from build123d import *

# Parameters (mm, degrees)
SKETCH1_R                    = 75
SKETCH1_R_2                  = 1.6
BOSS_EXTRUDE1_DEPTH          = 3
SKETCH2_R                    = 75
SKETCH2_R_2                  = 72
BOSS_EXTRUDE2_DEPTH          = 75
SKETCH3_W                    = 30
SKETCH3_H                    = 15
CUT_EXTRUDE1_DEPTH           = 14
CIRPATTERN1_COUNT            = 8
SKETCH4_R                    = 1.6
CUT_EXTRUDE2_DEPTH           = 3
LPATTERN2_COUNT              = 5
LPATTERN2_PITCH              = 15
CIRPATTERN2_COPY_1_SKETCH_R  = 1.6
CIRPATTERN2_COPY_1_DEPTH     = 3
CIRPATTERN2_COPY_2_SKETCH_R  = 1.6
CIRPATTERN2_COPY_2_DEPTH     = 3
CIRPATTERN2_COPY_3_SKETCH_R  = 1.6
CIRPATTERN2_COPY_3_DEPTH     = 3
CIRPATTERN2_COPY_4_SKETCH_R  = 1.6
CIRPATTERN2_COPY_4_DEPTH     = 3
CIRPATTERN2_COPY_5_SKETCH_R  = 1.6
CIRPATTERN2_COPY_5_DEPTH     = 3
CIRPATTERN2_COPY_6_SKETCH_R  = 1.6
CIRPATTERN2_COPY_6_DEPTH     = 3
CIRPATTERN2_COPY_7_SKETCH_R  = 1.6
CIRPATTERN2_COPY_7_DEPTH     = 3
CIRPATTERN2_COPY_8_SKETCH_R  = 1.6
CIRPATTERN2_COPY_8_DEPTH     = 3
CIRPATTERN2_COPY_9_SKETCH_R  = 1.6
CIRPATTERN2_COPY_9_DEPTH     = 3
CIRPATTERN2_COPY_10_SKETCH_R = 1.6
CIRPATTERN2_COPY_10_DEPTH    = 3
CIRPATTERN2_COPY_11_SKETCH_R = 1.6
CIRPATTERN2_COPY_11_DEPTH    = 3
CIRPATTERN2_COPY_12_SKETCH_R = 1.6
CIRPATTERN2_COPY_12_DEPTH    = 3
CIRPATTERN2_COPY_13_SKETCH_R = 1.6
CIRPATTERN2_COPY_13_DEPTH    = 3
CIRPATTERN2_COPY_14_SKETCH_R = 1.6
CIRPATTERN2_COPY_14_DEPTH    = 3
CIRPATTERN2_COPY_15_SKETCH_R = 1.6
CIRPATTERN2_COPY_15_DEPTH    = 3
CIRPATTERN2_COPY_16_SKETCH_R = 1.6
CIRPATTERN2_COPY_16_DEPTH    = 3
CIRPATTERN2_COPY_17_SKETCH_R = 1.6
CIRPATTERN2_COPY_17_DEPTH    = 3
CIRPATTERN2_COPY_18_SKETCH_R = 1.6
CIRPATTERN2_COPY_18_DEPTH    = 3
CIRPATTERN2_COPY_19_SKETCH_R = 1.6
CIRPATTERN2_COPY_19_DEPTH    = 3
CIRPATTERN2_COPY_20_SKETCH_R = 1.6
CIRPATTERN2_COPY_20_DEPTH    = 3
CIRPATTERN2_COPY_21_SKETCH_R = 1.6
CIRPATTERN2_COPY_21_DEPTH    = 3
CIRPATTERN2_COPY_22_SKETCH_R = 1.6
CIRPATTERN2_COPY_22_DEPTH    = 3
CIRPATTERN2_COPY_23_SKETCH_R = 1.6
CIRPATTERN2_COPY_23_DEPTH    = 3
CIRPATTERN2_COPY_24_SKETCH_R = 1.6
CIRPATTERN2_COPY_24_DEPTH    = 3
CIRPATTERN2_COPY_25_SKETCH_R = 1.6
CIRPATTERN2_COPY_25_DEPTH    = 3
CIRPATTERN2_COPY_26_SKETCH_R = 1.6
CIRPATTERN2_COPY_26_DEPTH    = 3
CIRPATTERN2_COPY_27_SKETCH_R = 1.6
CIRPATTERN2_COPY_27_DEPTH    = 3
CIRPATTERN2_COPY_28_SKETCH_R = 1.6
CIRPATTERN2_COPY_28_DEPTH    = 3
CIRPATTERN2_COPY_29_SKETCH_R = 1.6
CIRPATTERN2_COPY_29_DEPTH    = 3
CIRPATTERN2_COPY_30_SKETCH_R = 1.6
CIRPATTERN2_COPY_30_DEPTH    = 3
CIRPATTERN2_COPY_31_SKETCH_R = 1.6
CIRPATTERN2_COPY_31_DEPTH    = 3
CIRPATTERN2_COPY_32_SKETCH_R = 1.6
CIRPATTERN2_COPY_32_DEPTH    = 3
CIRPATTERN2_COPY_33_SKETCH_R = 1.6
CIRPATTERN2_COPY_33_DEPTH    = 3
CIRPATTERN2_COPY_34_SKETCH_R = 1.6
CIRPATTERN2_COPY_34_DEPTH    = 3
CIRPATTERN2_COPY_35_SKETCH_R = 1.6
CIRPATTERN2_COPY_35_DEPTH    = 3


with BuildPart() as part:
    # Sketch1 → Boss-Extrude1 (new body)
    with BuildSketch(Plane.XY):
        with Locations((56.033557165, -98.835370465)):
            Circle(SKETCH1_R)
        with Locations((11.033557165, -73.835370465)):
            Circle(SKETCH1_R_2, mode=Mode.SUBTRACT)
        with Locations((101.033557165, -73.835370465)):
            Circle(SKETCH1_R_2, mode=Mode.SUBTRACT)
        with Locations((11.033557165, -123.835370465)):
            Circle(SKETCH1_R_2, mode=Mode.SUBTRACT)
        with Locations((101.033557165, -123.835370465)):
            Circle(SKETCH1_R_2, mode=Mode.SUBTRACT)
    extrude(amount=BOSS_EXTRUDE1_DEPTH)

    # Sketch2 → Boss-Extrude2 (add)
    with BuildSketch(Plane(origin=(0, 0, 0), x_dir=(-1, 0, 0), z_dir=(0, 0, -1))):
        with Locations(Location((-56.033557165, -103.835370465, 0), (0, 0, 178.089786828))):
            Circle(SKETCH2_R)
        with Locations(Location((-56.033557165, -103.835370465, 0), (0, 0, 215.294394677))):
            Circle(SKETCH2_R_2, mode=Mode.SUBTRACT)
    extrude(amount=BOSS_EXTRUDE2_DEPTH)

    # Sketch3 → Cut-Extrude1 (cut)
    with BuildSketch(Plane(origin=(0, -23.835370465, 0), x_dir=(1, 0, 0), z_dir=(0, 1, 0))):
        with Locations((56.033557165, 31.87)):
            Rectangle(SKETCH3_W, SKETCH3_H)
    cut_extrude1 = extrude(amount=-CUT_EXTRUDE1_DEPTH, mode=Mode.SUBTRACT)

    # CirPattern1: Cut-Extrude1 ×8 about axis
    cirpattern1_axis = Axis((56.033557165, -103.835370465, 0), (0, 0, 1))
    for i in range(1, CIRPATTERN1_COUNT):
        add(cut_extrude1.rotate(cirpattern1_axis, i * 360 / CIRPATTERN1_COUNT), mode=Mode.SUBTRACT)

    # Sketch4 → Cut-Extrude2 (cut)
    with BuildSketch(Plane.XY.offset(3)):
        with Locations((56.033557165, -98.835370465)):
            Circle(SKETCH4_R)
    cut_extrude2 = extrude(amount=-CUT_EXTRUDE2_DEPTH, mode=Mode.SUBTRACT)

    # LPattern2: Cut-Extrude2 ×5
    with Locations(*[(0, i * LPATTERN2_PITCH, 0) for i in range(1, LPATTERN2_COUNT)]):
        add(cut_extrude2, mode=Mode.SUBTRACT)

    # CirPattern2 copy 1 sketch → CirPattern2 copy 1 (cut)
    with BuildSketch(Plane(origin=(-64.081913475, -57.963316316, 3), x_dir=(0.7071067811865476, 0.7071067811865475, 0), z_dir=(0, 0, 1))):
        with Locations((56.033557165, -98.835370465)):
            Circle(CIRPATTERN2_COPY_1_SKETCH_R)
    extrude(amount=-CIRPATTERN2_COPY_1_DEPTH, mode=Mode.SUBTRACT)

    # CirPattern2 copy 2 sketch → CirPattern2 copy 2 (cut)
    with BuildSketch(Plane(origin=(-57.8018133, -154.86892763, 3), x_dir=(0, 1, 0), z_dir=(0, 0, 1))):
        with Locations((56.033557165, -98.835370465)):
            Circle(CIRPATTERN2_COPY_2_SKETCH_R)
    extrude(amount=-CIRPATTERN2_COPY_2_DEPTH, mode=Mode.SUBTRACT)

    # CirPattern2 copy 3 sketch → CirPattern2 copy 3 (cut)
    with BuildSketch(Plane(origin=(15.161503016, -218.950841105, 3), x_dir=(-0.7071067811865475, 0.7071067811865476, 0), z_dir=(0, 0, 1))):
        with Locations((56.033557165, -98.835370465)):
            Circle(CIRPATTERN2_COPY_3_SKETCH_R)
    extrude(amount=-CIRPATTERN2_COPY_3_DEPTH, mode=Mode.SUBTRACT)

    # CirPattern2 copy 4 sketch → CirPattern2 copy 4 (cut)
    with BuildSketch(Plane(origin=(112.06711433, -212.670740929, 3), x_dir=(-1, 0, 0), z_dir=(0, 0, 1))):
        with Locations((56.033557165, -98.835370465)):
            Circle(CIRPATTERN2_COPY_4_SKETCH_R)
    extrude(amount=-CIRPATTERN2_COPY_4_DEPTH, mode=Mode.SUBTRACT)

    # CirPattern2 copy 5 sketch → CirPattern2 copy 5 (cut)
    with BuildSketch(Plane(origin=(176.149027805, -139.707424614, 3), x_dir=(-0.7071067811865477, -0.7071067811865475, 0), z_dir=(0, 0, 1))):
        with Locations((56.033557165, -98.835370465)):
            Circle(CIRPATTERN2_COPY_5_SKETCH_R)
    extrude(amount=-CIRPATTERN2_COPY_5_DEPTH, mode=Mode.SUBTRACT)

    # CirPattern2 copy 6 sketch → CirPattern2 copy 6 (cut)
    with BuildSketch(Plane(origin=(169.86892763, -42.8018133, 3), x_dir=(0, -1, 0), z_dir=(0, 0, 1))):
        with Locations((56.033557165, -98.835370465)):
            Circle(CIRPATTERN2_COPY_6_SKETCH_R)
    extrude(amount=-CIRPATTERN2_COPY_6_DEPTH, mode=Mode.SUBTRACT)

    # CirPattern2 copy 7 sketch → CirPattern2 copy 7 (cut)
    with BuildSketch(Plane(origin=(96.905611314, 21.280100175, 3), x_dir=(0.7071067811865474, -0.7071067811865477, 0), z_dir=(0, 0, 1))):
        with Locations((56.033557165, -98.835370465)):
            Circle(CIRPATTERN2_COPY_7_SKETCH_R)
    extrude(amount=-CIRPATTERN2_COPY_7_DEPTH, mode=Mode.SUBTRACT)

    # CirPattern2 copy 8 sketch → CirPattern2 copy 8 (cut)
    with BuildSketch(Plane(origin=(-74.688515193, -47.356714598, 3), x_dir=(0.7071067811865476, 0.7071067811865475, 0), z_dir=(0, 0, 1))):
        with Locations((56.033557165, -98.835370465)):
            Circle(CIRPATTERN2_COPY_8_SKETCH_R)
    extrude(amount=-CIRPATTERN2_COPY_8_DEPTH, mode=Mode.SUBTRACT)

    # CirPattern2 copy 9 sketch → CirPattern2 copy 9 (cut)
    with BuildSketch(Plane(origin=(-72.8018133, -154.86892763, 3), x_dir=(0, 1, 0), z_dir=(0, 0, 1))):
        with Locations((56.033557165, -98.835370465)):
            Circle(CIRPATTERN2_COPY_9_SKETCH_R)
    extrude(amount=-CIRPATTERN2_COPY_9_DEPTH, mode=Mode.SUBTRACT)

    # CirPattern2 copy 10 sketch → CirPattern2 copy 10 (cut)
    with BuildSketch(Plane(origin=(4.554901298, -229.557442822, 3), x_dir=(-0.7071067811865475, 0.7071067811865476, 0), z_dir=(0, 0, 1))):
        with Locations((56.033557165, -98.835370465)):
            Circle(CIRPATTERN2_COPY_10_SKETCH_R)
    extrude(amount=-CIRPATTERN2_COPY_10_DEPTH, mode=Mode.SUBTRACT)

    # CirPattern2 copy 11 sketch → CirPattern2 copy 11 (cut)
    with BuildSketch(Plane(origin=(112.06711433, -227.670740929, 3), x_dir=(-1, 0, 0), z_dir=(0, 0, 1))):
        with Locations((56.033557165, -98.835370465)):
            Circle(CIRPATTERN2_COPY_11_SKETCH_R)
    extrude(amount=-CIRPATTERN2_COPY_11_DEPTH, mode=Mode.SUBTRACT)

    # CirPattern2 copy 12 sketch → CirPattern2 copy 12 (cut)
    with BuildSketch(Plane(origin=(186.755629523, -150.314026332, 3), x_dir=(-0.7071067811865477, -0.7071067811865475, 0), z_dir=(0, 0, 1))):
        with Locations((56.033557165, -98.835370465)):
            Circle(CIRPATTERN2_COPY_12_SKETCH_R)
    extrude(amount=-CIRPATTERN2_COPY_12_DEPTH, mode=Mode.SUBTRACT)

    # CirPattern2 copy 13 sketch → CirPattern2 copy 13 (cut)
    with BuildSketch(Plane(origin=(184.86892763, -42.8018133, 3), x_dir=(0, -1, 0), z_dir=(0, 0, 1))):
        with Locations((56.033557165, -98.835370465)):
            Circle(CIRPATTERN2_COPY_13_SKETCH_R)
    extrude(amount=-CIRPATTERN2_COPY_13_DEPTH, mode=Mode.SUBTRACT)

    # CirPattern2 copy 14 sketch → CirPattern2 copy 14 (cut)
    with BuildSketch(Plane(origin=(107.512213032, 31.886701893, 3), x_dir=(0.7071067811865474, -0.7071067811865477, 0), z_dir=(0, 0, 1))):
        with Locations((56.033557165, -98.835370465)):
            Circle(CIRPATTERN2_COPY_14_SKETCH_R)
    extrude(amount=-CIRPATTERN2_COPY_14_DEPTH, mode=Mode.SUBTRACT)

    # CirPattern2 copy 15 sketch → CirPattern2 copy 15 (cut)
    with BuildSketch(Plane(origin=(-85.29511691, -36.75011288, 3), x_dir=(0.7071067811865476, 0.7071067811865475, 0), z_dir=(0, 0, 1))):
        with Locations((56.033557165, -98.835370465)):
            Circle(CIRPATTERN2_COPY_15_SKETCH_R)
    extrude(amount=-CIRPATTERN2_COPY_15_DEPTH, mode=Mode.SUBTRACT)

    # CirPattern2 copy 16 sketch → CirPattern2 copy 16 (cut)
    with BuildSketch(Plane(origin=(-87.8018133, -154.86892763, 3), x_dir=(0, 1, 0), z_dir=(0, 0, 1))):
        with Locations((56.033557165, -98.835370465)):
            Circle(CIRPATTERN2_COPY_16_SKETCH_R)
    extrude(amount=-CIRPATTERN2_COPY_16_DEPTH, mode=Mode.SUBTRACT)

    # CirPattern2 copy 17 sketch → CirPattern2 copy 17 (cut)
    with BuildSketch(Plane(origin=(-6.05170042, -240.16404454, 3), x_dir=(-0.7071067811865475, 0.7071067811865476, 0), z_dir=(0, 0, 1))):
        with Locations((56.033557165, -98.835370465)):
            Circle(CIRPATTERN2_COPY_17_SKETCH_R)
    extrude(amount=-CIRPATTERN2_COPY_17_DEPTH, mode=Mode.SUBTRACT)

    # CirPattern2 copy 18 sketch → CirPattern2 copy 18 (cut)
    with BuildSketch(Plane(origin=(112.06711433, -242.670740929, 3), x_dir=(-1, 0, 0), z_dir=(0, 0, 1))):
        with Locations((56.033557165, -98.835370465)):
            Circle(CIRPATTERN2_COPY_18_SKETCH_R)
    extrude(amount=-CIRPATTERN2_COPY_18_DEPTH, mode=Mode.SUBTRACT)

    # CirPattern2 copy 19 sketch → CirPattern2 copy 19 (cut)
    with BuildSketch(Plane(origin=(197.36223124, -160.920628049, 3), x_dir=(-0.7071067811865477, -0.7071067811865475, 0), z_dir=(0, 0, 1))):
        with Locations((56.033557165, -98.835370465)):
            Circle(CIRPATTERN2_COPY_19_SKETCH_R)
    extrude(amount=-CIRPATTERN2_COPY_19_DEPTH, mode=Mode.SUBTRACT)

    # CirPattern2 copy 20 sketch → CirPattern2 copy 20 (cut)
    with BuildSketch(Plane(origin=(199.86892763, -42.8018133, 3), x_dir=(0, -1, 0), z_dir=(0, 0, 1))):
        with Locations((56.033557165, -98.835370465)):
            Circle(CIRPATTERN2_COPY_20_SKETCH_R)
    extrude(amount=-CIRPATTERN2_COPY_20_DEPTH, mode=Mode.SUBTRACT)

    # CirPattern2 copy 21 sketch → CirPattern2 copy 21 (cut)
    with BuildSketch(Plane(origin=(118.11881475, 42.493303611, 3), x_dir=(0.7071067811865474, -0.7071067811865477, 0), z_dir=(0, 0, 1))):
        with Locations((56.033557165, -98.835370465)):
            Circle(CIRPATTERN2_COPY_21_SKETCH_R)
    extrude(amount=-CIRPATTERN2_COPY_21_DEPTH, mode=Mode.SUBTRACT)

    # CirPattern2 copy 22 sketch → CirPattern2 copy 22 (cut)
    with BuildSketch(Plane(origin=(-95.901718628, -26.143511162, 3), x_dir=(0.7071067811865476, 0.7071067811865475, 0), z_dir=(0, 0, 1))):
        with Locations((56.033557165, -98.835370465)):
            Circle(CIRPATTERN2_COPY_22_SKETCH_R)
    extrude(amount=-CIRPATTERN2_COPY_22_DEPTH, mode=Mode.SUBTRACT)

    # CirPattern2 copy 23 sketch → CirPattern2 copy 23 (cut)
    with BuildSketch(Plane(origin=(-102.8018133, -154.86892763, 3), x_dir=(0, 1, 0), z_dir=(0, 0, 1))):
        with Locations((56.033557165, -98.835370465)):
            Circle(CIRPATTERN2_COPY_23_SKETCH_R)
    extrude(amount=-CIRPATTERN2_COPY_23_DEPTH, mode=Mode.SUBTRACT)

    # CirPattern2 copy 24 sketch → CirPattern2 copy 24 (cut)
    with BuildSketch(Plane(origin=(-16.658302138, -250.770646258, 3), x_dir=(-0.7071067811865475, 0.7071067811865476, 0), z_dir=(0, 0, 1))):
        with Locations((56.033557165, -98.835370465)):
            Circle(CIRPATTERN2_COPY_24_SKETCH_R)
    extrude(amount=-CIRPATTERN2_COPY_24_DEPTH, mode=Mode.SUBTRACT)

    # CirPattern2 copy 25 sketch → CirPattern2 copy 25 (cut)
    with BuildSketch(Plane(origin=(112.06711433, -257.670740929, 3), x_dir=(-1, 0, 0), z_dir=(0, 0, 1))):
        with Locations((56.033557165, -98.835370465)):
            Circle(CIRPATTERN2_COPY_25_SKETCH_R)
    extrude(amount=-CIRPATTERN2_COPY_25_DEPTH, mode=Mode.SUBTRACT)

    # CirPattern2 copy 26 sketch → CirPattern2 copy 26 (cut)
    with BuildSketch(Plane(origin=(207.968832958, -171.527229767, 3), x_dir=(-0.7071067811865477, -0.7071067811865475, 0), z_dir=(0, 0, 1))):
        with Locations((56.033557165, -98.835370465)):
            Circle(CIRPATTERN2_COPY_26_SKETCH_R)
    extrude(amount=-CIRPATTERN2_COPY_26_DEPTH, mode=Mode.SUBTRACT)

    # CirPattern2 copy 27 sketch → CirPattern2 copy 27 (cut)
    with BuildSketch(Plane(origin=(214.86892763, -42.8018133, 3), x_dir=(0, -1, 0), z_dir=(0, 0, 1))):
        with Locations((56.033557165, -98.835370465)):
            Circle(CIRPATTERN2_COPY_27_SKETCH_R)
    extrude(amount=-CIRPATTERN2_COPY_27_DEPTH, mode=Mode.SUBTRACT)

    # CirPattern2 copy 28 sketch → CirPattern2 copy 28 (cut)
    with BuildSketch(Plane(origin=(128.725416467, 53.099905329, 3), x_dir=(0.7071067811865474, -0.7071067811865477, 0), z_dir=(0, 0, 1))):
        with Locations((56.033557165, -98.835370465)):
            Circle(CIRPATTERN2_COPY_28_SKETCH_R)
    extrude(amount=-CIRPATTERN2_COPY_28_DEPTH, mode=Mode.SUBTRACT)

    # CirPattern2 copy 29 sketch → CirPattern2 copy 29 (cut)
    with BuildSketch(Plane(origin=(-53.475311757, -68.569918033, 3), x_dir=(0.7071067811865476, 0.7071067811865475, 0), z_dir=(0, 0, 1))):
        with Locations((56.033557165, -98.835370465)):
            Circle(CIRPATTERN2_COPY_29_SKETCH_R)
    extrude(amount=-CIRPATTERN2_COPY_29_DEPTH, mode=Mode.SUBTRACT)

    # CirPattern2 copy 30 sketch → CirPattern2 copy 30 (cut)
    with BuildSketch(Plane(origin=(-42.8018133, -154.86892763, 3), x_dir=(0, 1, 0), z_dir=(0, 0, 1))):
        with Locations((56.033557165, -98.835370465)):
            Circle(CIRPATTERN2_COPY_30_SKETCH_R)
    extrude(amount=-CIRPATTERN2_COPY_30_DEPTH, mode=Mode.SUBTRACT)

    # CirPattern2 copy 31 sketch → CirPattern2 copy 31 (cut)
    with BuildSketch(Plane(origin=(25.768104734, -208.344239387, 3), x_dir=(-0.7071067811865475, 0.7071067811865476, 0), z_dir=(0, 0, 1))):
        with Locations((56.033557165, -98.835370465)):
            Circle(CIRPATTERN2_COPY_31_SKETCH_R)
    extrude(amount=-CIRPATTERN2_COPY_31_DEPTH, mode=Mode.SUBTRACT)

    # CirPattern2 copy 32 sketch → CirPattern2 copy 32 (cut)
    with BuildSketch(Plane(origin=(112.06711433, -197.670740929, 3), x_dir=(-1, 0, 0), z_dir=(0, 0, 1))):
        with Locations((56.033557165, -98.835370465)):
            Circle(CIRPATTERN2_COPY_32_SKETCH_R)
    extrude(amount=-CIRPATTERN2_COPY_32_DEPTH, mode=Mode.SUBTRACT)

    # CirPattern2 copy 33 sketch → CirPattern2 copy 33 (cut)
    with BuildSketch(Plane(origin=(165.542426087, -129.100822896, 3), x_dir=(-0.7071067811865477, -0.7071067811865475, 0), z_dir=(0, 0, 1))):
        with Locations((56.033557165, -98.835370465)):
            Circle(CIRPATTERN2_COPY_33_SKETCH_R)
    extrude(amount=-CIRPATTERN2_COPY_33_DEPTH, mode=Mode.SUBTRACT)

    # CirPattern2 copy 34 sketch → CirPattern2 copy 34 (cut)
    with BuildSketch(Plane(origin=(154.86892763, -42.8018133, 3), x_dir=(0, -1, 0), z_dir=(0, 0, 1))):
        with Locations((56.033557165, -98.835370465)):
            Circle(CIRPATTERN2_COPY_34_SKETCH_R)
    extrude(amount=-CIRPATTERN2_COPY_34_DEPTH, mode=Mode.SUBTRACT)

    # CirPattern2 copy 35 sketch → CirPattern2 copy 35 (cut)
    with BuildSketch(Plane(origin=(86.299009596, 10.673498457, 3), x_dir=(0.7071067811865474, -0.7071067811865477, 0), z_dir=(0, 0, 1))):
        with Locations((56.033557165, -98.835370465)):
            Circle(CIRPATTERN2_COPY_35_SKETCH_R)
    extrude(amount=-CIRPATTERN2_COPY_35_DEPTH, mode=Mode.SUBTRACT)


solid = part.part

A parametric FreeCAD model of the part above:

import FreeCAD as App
import Part
import Sketcher
from FreeCAD import Vector
Q = App.Units.Quantity

doc = App.newDocument("Part")
body = doc.addObject("PartDesign::Body", "Body")

# Sketch on XY plane
sketch1 = body.newObject("Sketcher::SketchObject", "Sketch")
sketch1.AttachmentSupport = (doc.getObject("XY_Plane"), [""])
sketch1.MapMode = "FlatFace"
sketch1.addGeometry(Part.Circle(Vector(56.033557, -98.83537, 0), Vector(0, 0, 1), 75), False)
sketch1.addGeometry(Part.Circle(Vector(11.033557, -123.83537, 0), Vector(0, 0, 1), 1.6), False)
sketch1.addGeometry(Part.Circle(Vector(101.033557, -123.83537, 0), Vector(0, 0, 1), 1.6), False)
sketch1.addGeometry(Part.Circle(Vector(11.033557, -73.83537, 0), Vector(0, 0, 1), 1.6), False)
sketch1.addGeometry(Part.Circle(Vector(101.033557, -73.83537, 0), Vector(0, 0, 1), 1.6), False)
sketch1.addConstraint(Sketcher.Constraint("Equal", 1, 2))
sketch1.addConstraint(Sketcher.Constraint("Equal", 2, 3))
sketch1.addConstraint(Sketcher.Constraint("Equal", 3, 4))
sketch1.addConstraint(Sketcher.Constraint("Horizontal", 1, 3, 2, 3))
sketch1.addConstraint(Sketcher.Constraint("Horizontal", 3, 3, 4, 3))
sketch1.addConstraint(Sketcher.Constraint("Vertical", 1, 3, 3, 3))
sketch1.addConstraint(Sketcher.Constraint("Vertical", 2, 3, 4, 3))
sketch1.addConstraint(Sketcher.Constraint("Diameter", 0, Q("150 mm")))
sketch1.addConstraint(Sketcher.Constraint("Diameter", 1, Q("3.2 mm")))
sketch1.addConstraint(Sketcher.Constraint("DistanceX", 1, 3, 0, 3, Q("45 mm")))
sketch1.addConstraint(Sketcher.Constraint("DistanceY", 1, 3, 0, 3, Q("25 mm")))
sketch1.addConstraint(Sketcher.Constraint("DistanceX", 0, 3, 2, 3, Q("45 mm")))
sketch1.addConstraint(Sketcher.Constraint("DistanceY", 1, 3, 3, 3, Q("50 mm")))
sketch1.addConstraint(Sketcher.Constraint("DistanceY", 0, 3, -1, 1, Q("98.83537 mm")))
sketch1.addConstraint(Sketcher.Constraint("DistanceX", -1, 1, 0, 3, Q("56.033557 mm")))
pad1 = body.newObject("PartDesign::Pad", "Pad")
pad1.Profile = sketch1
pad1.Length = 3

# Sketch on XY plane
sketch2 = body.newObject("Sketcher::SketchObject", "Sketch001")
sketch2.AttachmentSupport = (doc.getObject("XY_Plane"), [""])
sketch2.MapMode = "FlatFace"
sketch2.addGeometry(Part.Circle(Vector(56.033557, -103.83537, 0), Vector(0, 0, 1), 75), False)
sketch2.addGeometry(Part.Circle(Vector(56.033557, -103.83537, 0), Vector(0, 0, 1), 72), False)
sketch2.addConstraint(Sketcher.Constraint("Coincident", 1, 3, 0, 3))
sketch2.addConstraint(Sketcher.Constraint("Diameter", 0, Q("150 mm")))
sketch2.addConstraint(Sketcher.Constraint("Diameter", 1, Q("144 mm")))
sketch2.addConstraint(Sketcher.Constraint("DistanceY", 0, 3, -1, 1, Q("103.83537 mm")))
sketch2.addConstraint(Sketcher.Constraint("DistanceX", -1, 1, 0, 3, Q("56.033557 mm")))
pad2 = body.newObject("PartDesign::Pad", "Pad001")
pad2.Profile = sketch2
pad2.Length = 75
pad2.Reversed = True

# Sketch on XZ plane
sketch3 = body.newObject("Sketcher::SketchObject", "Sketch002")
sketch3.AttachmentSupport = (doc.getObject("XZ_Plane"), [""])
sketch3.MapMode = "FlatFace"
sketch3.AttachmentOffset = App.Placement(Vector(0, 0, 23.83537), App.Rotation())
sketch3.addGeometry(Part.LineSegment(Vector(41.033557, -39.37, 0), Vector(41.033557, -24.37, 0)), False)
sketch3.addGeometry(Part.LineSegment(Vector(41.033557, -24.37, 0), Vector(71.033557, -24.37, 0)), False)
sketch3.addGeometry(Part.LineSegment(Vector(71.033557, -24.37, 0), Vector(71.033557, -39.37, 0)), False)
sketch3.addGeometry(Part.LineSegment(Vector(71.033557, -39.37, 0), Vector(41.033557, -39.37, 0)), False)
sketch3.addConstraint(Sketcher.Constraint("Coincident", 0, 2, 1, 1))
sketch3.addConstraint(Sketcher.Constraint("Coincident", 1, 2, 2, 1))
sketch3.addConstraint(Sketcher.Constraint("Coincident", 2, 2, 3, 1))
sketch3.addConstraint(Sketcher.Constraint("Coincident", 3, 2, 0, 1))
sketch3.addConstraint(Sketcher.Constraint("Vertical", 0))
sketch3.addConstraint(Sketcher.Constraint("Horizontal", 1))
sketch3.addConstraint(Sketcher.Constraint("Vertical", 2))
sketch3.addConstraint(Sketcher.Constraint("Horizontal", 3))
sketch3.addConstraint(Sketcher.Constraint("DistanceX", 1, 1, 1, 2, Q("30 mm")))
sketch3.addConstraint(Sketcher.Constraint("DistanceY", 0, 1, 0, 2, Q("15 mm")))
sketch3.addConstraint(Sketcher.Constraint("DistanceY", 0, 2, -1, 1, Q("24.37 mm")))
sketch3.addConstraint(Sketcher.Constraint("DistanceX", -1, 1, 0, 2, Q("41.033557 mm")))
pocket1 = body.newObject("PartDesign::Pocket", "Pocket")
pocket1.Profile = sketch3
pocket1.Length = 14
pocket1.Reversed = True
doc.recompute()

datumline = body.newObject("PartDesign::Line", "DatumLine")
datumline.Placement = App.Placement(Vector(56.033557, -103.83537, 0), App.Rotation(Vector(0, 0, 1), Vector(0, 0, 1)))
polarpattern = body.newObject("PartDesign::PolarPattern", "PolarPattern")
polarpattern.Originals = [pocket1]
polarpattern.Axis = (datumline, [""])
polarpattern.Angle = 360
polarpattern.Occurrences = 8
body.Tip = polarpattern

# Sketch on XY plane
sketch4 = body.newObject("Sketcher::SketchObject", "Sketch003")
sketch4.AttachmentSupport = (doc.getObject("XY_Plane"), [""])
sketch4.MapMode = "FlatFace"
sketch4.AttachmentOffset = App.Placement(Vector(0, 0, 3), App.Rotation())
sketch4.addGeometry(Part.Circle(Vector(56.033557, -98.83537, 0), Vector(0, 0, 1), 1.6), False)
sketch4.addConstraint(Sketcher.Constraint("Diameter", 0, Q("3.2 mm")))
sketch4.addConstraint(Sketcher.Constraint("DistanceY", 0, 3, -1, 1, Q("98.83537 mm")))
sketch4.addConstraint(Sketcher.Constraint("DistanceX", -1, 1, 0, 3, Q("56.033557 mm")))
pocket2 = body.newObject("PartDesign::Pocket", "Pocket001")
pocket2.Profile = sketch4
pocket2.Length = 3
doc.recompute()

linearpattern = body.newObject("PartDesign::LinearPattern", "LinearPattern")
linearpattern.Originals = [pocket2]
linearpattern.Direction = (doc.getObject("Y_Axis"), [""])
linearpattern.Mode = "offset"
linearpattern.Offset = 15
linearpattern.Occurrences = 5
body.Tip = linearpattern

# Sketch on XY plane
sketch5 = body.newObject("Sketcher::SketchObject", "Sketch004")
sketch5.AttachmentSupport = (doc.getObject("XY_Plane"), [""])
sketch5.MapMode = "FlatFace"
sketch5.AttachmentOffset = App.Placement(Vector(0, 0, 3), App.Rotation())
sketch5.addGeometry(Part.Circle(Vector(45.426955, -88.228769, 0), Vector(0, 0, 1), 1.6), False)
sketch5.addConstraint(Sketcher.Constraint("Diameter", 0, Q("3.2 mm")))
sketch5.addConstraint(Sketcher.Constraint("DistanceY", 0, 3, -1, 1, Q("88.228769 mm")))
sketch5.addConstraint(Sketcher.Constraint("DistanceX", -1, 1, 0, 3, Q("45.426955 mm")))
pocket3 = body.newObject("PartDesign::Pocket", "Pocket002")
pocket3.Profile = sketch5
pocket3.Length = 3

# Sketch on XY plane
sketch6 = body.newObject("Sketcher::SketchObject", "Sketch005")
sketch6.AttachmentSupport = (doc.getObject("XY_Plane"), [""])
sketch6.MapMode = "FlatFace"
sketch6.AttachmentOffset = App.Placement(Vector(0, 0, 3), App.Rotation())
sketch6.addGeometry(Part.Circle(Vector(41.033557, -98.83537, 0), Vector(0, 0, 1), 1.6), False)
sketch6.addConstraint(Sketcher.Constraint("Diameter", 0, Q("3.2 mm")))
sketch6.addConstraint(Sketcher.Constraint("DistanceY", 0, 3, -1, 1, Q("98.83537 mm")))
sketch6.addConstraint(Sketcher.Constraint("DistanceX", -1, 1, 0, 3, Q("41.033557 mm")))
pocket4 = body.newObject("PartDesign::Pocket", "Pocket003")
pocket4.Profile = sketch6
pocket4.Length = 3

# Sketch on XY plane
sketch7 = body.newObject("Sketcher::SketchObject", "Sketch006")
sketch7.AttachmentSupport = (doc.getObject("XY_Plane"), [""])
sketch7.MapMode = "FlatFace"
sketch7.AttachmentOffset = App.Placement(Vector(0, 0, 3), App.Rotation())
sketch7.addGeometry(Part.Circle(Vector(45.426955, -109.441972, 0), Vector(0, 0, 1), 1.6), False)
sketch7.addConstraint(Sketcher.Constraint("Diameter", 0, Q("3.2 mm")))
sketch7.addConstraint(Sketcher.Constraint("DistanceX", -1, 1, 0, 3, Q("45.426955 mm")))
sketch7.addConstraint(Sketcher.Constraint("DistanceY", 0, 3, -1, 1, Q("109.441972 mm")))
pocket5 = body.newObject("PartDesign::Pocket", "Pocket004")
pocket5.Profile = sketch7
pocket5.Length = 3

# Sketch on XY plane
sketch8 = body.newObject("Sketcher::SketchObject", "Sketch007")
sketch8.AttachmentSupport = (doc.getObject("XY_Plane"), [""])
sketch8.MapMode = "FlatFace"
sketch8.AttachmentOffset = App.Placement(Vector(0, 0, 3), App.Rotation())
sketch8.addGeometry(Part.Circle(Vector(56.033557, -113.83537, 0), Vector(0, 0, 1), 1.6), False)
sketch8.addConstraint(Sketcher.Constraint("Diameter", 0, Q("3.2 mm")))
sketch8.addConstraint(Sketcher.Constraint("DistanceY", 0, 3, -1, 1, Q("113.83537 mm")))
sketch8.addConstraint(Sketcher.Constraint("DistanceX", -1, 1, 0, 3, Q("56.033557 mm")))
pocket6 = body.newObject("PartDesign::Pocket", "Pocket005")
pocket6.Profile = sketch8
pocket6.Length = 3

# Sketch on XY plane
sketch9 = body.newObject("Sketcher::SketchObject", "Sketch008")
sketch9.AttachmentSupport = (doc.getObject("XY_Plane"), [""])
sketch9.MapMode = "FlatFace"
sketch9.AttachmentOffset = App.Placement(Vector(0, 0, 3), App.Rotation())
sketch9.addGeometry(Part.Circle(Vector(66.640159, -109.441972, 0), Vector(0, 0, 1), 1.6), False)
sketch9.addConstraint(Sketcher.Constraint("Diameter", 0, Q("3.2 mm")))
sketch9.addConstraint(Sketcher.Constraint("DistanceX", -1, 1, 0, 3, Q("66.640159 mm")))
sketch9.addConstraint(Sketcher.Constraint("DistanceY", 0, 3, -1, 1, Q("109.441972 mm")))
pocket7 = body.newObject("PartDesign::Pocket", "Pocket006")
pocket7.Profile = sketch9
pocket7.Length = 3

# Sketch on XY plane
sketch10 = body.newObject("Sketcher::SketchObject", "Sketch009")
sketch10.AttachmentSupport = (doc.getObject("XY_Plane"), [""])
sketch10.MapMode = "FlatFace"
sketch10.AttachmentOffset = App.Placement(Vector(0, 0, 3), App.Rotation())
sketch10.addGeometry(Part.Circle(Vector(71.033557, -98.83537, 0), Vector(0, 0, 1), 1.6), False)
sketch10.addConstraint(Sketcher.Constraint("Diameter", 0, Q("3.2 mm")))
sketch10.addConstraint(Sketcher.Constraint("DistanceY", 0, 3, -1, 1, Q("98.83537 mm")))
sketch10.addConstraint(Sketcher.Constraint("DistanceX", -1, 1, 0, 3, Q("71.033557 mm")))
pocket8 = body.newObject("PartDesign::Pocket", "Pocket007")
pocket8.Profile = sketch10
pocket8.Length = 3

# Sketch on XY plane
sketch11 = body.newObject("Sketcher::SketchObject", "Sketch010")
sketch11.AttachmentSupport = (doc.getObject("XY_Plane"), [""])
sketch11.MapMode = "FlatFace"
sketch11.AttachmentOffset = App.Placement(Vector(0, 0, 3), App.Rotation())
sketch11.addGeometry(Part.Circle(Vector(66.640159, -88.228769, 0), Vector(0, 0, 1), 1.6), False)
sketch11.addConstraint(Sketcher.Constraint("Diameter", 0, Q("3.2 mm")))
sketch11.addConstraint(Sketcher.Constraint("DistanceX", -1, 1, 0, 3, Q("66.640159 mm")))
sketch11.addConstraint(Sketcher.Constraint("DistanceY", 0, 3, -1, 1, Q("88.228769 mm")))
pocket9 = body.newObject("PartDesign::Pocket", "Pocket008")
pocket9.Profile = sketch11
pocket9.Length = 3

# Sketch on XY plane
sketch12 = body.newObject("Sketcher::SketchObject", "Sketch011")
sketch12.AttachmentSupport = (doc.getObject("XY_Plane"), [""])
sketch12.MapMode = "FlatFace"
sketch12.AttachmentOffset = App.Placement(Vector(0, 0, 3), App.Rotation())
sketch12.addGeometry(Part.Circle(Vector(34.820354, -77.622167, 0), Vector(0, 0, 1), 1.6), False)
sketch12.addConstraint(Sketcher.Constraint("Diameter", 0, Q("3.2 mm")))
sketch12.addConstraint(Sketcher.Constraint("DistanceX", -1, 1, 0, 3, Q("34.820354 mm")))
sketch12.addConstraint(Sketcher.Constraint("DistanceY", 0, 3, -1, 1, Q("77.622167 mm")))
pocket10 = body.newObject("PartDesign::Pocket", "Pocket009")
pocket10.Profile = sketch12
pocket10.Length = 3

# Sketch on XY plane
sketch13 = body.newObject("Sketcher::SketchObject", "Sketch012")
sketch13.AttachmentSupport = (doc.getObject("XY_Plane"), [""])
sketch13.MapMode = "FlatFace"
sketch13.AttachmentOffset = App.Placement(Vector(0, 0, 3), App.Rotation())
sketch13.addGeometry(Part.Circle(Vector(26.033557, -98.83537, 0), Vector(0, 0, 1), 1.6), False)
sketch13.addConstraint(Sketcher.Constraint("Diameter", 0, Q("3.2 mm")))
sketch13.addConstraint(Sketcher.Constraint("DistanceY", 0, 3, -1, 1, Q("98.83537 mm")))
sketch13.addConstraint(Sketcher.Constraint("DistanceX", -1, 1, 0, 3, Q("26.033557 mm")))
pocket11 = body.newObject("PartDesign::Pocket", "Pocket010")
pocket11.Profile = sketch13
pocket11.Length = 3

# Sketch on XY plane
sketch14 = body.newObject("Sketcher::SketchObject", "Sketch013")
sketch14.AttachmentSupport = (doc.getObject("XY_Plane"), [""])
sketch14.MapMode = "FlatFace"
sketch14.AttachmentOffset = App.Placement(Vector(0, 0, 3), App.Rotation())
sketch14.addGeometry(Part.Circle(Vector(34.820354, -120.048574, 0), Vector(0, 0, 1), 1.6), False)
sketch14.addConstraint(Sketcher.Constraint("Diameter", 0, Q("3.2 mm")))
sketch14.addConstraint(Sketcher.Constraint("DistanceX", -1, 1, 0, 3, Q("34.820354 mm")))
sketch14.addConstraint(Sketcher.Constraint("DistanceY", 0, 3, -1, 1, Q("120.048574 mm")))
pocket12 = body.newObject("PartDesign::Pocket", "Pocket011")
pocket12.Profile = sketch14
pocket12.Length = 3

# Sketch on XY plane
sketch15 = body.newObject("Sketcher::SketchObject", "Sketch014")
sketch15.AttachmentSupport = (doc.getObject("XY_Plane"), [""])
sketch15.MapMode = "FlatFace"
sketch15.AttachmentOffset = App.Placement(Vector(0, 0, 3), App.Rotation())
sketch15.addGeometry(Part.Circle(Vector(56.033557, -128.83537, 0), Vector(0, 0, 1), 1.6), False)
sketch15.addConstraint(Sketcher.Constraint("Diameter", 0, Q("3.2 mm")))
sketch15.addConstraint(Sketcher.Constraint("DistanceY", 0, 3, -1, 1, Q("128.83537 mm")))
sketch15.addConstraint(Sketcher.Constraint("DistanceX", -1, 1, 0, 3, Q("56.033557 mm")))
pocket13 = body.newObject("PartDesign::Pocket", "Pocket012")
pocket13.Profile = sketch15
pocket13.Length = 3

# Sketch on XY plane
sketch16 = body.newObject("Sketcher::SketchObject", "Sketch015")
sketch16.AttachmentSupport = (doc.getObject("XY_Plane"), [""])
sketch16.MapMode = "FlatFace"
sketch16.AttachmentOffset = App.Placement(Vector(0, 0, 3), App.Rotation())
sketch16.addGeometry(Part.Circle(Vector(77.246761, -120.048574, 0), Vector(0, 0, 1), 1.6), False)
sketch16.addConstraint(Sketcher.Constraint("Diameter", 0, Q("3.2 mm")))
sketch16.addConstraint(Sketcher.Constraint("DistanceX", -1, 1, 0, 3, Q("77.246761 mm")))
sketch16.addConstraint(Sketcher.Constraint("DistanceY", 0, 3, -1, 1, Q("120.048574 mm")))
pocket14 = body.newObject("PartDesign::Pocket", "Pocket013")
pocket14.Profile = sketch16
pocket14.Length = 3

# Sketch on XY plane
sketch17 = body.newObject("Sketcher::SketchObject", "Sketch016")
sketch17.AttachmentSupport = (doc.getObject("XY_Plane"), [""])
sketch17.MapMode = "FlatFace"
sketch17.AttachmentOffset = App.Placement(Vector(0, 0, 3), App.Rotation())
sketch17.addGeometry(Part.Circle(Vector(86.033557, -98.83537, 0), Vector(0, 0, 1), 1.6), False)
sketch17.addConstraint(Sketcher.Constraint("Diameter", 0, Q("3.2 mm")))
sketch17.addConstraint(Sketcher.Constraint("DistanceY", 0, 3, -1, 1, Q("98.83537 mm")))
sketch17.addConstraint(Sketcher.Constraint("DistanceX", -1, 1, 0, 3, Q("86.033557 mm")))
pocket15 = body.newObject("PartDesign::Pocket", "Pocket014")
pocket15.Profile = sketch17
pocket15.Length = 3

# Sketch on XY plane
sketch18 = body.newObject("Sketcher::SketchObject", "Sketch017")
sketch18.AttachmentSupport = (doc.getObject("XY_Plane"), [""])
sketch18.MapMode = "FlatFace"
sketch18.AttachmentOffset = App.Placement(Vector(0, 0, 3), App.Rotation())
sketch18.addGeometry(Part.Circle(Vector(77.246761, -77.622167, 0), Vector(0, 0, 1), 1.6), False)
sketch18.addConstraint(Sketcher.Constraint("Diameter", 0, Q("3.2 mm")))
sketch18.addConstraint(Sketcher.Constraint("DistanceX", -1, 1, 0, 3, Q("77.246761 mm")))
sketch18.addConstraint(Sketcher.Constraint("DistanceY", 0, 3, -1, 1, Q("77.622167 mm")))
pocket16 = body.newObject("PartDesign::Pocket", "Pocket015")
pocket16.Profile = sketch18
pocket16.Length = 3

# Sketch on XY plane
sketch19 = body.newObject("Sketcher::SketchObject", "Sketch018")
sketch19.AttachmentSupport = (doc.getObject("XY_Plane"), [""])
sketch19.MapMode = "FlatFace"
sketch19.AttachmentOffset = App.Placement(Vector(0, 0, 3), App.Rotation())
sketch19.addGeometry(Part.Circle(Vector(24.213752, -67.015565, 0), Vector(0, 0, 1), 1.6), False)
sketch19.addConstraint(Sketcher.Constraint("Diameter", 0, Q("3.2 mm")))
sketch19.addConstraint(Sketcher.Constraint("DistanceX", -1, 1, 0, 3, Q("24.213752 mm")))
sketch19.addConstraint(Sketcher.Constraint("DistanceY", 0, 3, -1, 1, Q("67.015565 mm")))
pocket17 = body.newObject("PartDesign::Pocket", "Pocket016")
pocket17.Profile = sketch19
pocket17.Length = 3

# Sketch on XY plane
sketch20 = body.newObject("Sketcher::SketchObject", "Sketch019")
sketch20.AttachmentSupport = (doc.getObject("XY_Plane"), [""])
sketch20.MapMode = "FlatFace"
sketch20.AttachmentOffset = App.Placement(Vector(0, 0, 3), App.Rotation())
sketch20.addGeometry(Part.Circle(Vector(11.033557, -98.83537, 0), Vector(0, 0, 1), 1.6), False)
sketch20.addConstraint(Sketcher.Constraint("Diameter", 0, Q("3.2 mm")))
sketch20.addConstraint(Sketcher.Constraint("DistanceY", 0, 3, -1, 1, Q("98.83537 mm")))
sketch20.addConstraint(Sketcher.Constraint("DistanceX", -1, 1, 0, 3, Q("11.033557 mm")))
pocket18 = body.newObject("PartDesign::Pocket", "Pocket017")
pocket18.Profile = sketch20
pocket18.Length = 3

# Sketch on XY plane
sketch21 = body.newObject("Sketcher::SketchObject", "Sketch020")
sketch21.AttachmentSupport = (doc.getObject("XY_Plane"), [""])
sketch21.MapMode = "FlatFace"
sketch21.AttachmentOffset = App.Placement(Vector(0, 0, 3), App.Rotation())
sketch21.addGeometry(Part.Circle(Vector(24.213752, -130.655176, 0), Vector(0, 0, 1), 1.6), False)
sketch21.addConstraint(Sketcher.Constraint("Diameter", 0, Q("3.2 mm")))
sketch21.addConstraint(Sketcher.Constraint("DistanceX", -1, 1, 0, 3, Q("24.213752 mm")))
sketch21.addConstraint(Sketcher.Constraint("DistanceY", 0, 3, -1, 1, Q("130.655176 mm")))
pocket19 = body.newObject("PartDesign::Pocket", "Pocket018")
pocket19.Profile = sketch21
pocket19.Length = 3

# Sketch on XY plane
sketch22 = body.newObject("Sketcher::SketchObject", "Sketch021")
sketch22.AttachmentSupport = (doc.getObject("XY_Plane"), [""])
sketch22.MapMode = "FlatFace"
sketch22.AttachmentOffset = App.Placement(Vector(0, 0, 3), App.Rotation())
sketch22.addGeometry(Part.Circle(Vector(56.033557, -143.83537, 0), Vector(0, 0, 1), 1.6), False)
sketch22.addConstraint(Sketcher.Constraint("Diameter", 0, Q("3.2 mm")))
sketch22.addConstraint(Sketcher.Constraint("DistanceY", 0, 3, -1, 1, Q("143.83537 mm")))
sketch22.addConstraint(Sketcher.Constraint("DistanceX", -1, 1, 0, 3, Q("56.033557 mm")))
pocket20 = body.newObject("PartDesign::Pocket", "Pocket019")
pocket20.Profile = sketch22
pocket20.Length = 3

# Sketch on XY plane
sketch23 = body.newObject("Sketcher::SketchObject", "Sketch022")
sketch23.AttachmentSupport = (doc.getObject("XY_Plane"), [""])
sketch23.MapMode = "FlatFace"
sketch23.AttachmentOffset = App.Placement(Vector(0, 0, 3), App.Rotation())
sketch23.addGeometry(Part.Circle(Vector(87.853362, -130.655176, 0), Vector(0, 0, 1), 1.6), False)
sketch23.addConstraint(Sketcher.Constraint("Diameter", 0, Q("3.2 mm")))
sketch23.addConstraint(Sketcher.Constraint("DistanceX", -1, 1, 0, 3, Q("87.853362 mm")))
sketch23.addConstraint(Sketcher.Constraint("DistanceY", 0, 3, -1, 1, Q("130.655176 mm")))
pocket21 = body.newObject("PartDesign::Pocket", "Pocket020")
pocket21.Profile = sketch23
pocket21.Length = 3

# Sketch on XY plane
sketch24 = body.newObject("Sketcher::SketchObject", "Sketch023")
sketch24.AttachmentSupport = (doc.getObject("XY_Plane"), [""])
sketch24.MapMode = "FlatFace"
sketch24.AttachmentOffset = App.Placement(Vector(0, 0, 3), App.Rotation())
sketch24.addGeometry(Part.Circle(Vector(101.033557, -98.83537, 0), Vector(0, 0, 1), 1.6), False)
sketch24.addConstraint(Sketcher.Constraint("Diameter", 0, Q("3.2 mm")))
sketch24.addConstraint(Sketcher.Constraint("DistanceY", 0, 3, -1, 1, Q("98.83537 mm")))
sketch24.addConstraint(Sketcher.Constraint("DistanceX", -1, 1, 0, 3, Q("101.033557 mm")))
pocket22 = body.newObject("PartDesign::Pocket", "Pocket021")
pocket22.Profile = sketch24
pocket22.Length = 3

# Sketch on XY plane
sketch25 = body.newObject("Sketcher::SketchObject", "Sketch024")
sketch25.AttachmentSupport = (doc.getObject("XY_Plane"), [""])
sketch25.MapMode = "FlatFace"
sketch25.AttachmentOffset = App.Placement(Vector(0, 0, 3), App.Rotation())
sketch25.addGeometry(Part.Circle(Vector(87.853362, -67.015565, 0), Vector(0, 0, 1), 1.6), False)
sketch25.addConstraint(Sketcher.Constraint("Diameter", 0, Q("3.2 mm")))
sketch25.addConstraint(Sketcher.Constraint("DistanceX", -1, 1, 0, 3, Q("87.853362 mm")))
sketch25.addConstraint(Sketcher.Constraint("DistanceY", 0, 3, -1, 1, Q("67.015565 mm")))
pocket23 = body.newObject("PartDesign::Pocket", "Pocket022")
pocket23.Profile = sketch25
pocket23.Length = 3

# Sketch on XY plane
sketch26 = body.newObject("Sketcher::SketchObject", "Sketch025")
sketch26.AttachmentSupport = (doc.getObject("XY_Plane"), [""])
sketch26.MapMode = "FlatFace"
sketch26.AttachmentOffset = App.Placement(Vector(0, 0, 3), App.Rotation())
sketch26.addGeometry(Part.Circle(Vector(13.60715, -56.408964, 0), Vector(0, 0, 1), 1.6), False)
sketch26.addConstraint(Sketcher.Constraint("Diameter", 0, Q("3.2 mm")))
sketch26.addConstraint(Sketcher.Constraint("DistanceX", -1, 1, 0, 3, Q("13.60715 mm")))
sketch26.addConstraint(Sketcher.Constraint("DistanceY", 0, 3, -1, 1, Q("56.408964 mm")))
pocket24 = body.newObject("PartDesign::Pocket", "Pocket023")
pocket24.Profile = sketch26
pocket24.Length = 3

# Sketch on XY plane
sketch27 = body.newObject("Sketcher::SketchObject", "Sketch026")
sketch27.AttachmentSupport = (doc.getObject("XY_Plane"), [""])
sketch27.MapMode = "FlatFace"
sketch27.AttachmentOffset = App.Placement(Vector(0, 0, 3), App.Rotation())
sketch27.addGeometry(Part.Circle(Vector(-3.966443, -98.83537, 0), Vector(0, 0, 1), 1.6), False)
sketch27.addConstraint(Sketcher.Constraint("Diameter", 0, Q("3.2 mm")))
sketch27.addConstraint(Sketcher.Constraint("DistanceY", 0, 3, -1, 1, Q("98.83537 mm")))
sketch27.addConstraint(Sketcher.Constraint("DistanceX", 0, 3, -1, 1, Q("3.966443 mm")))
pocket25 = body.newObject("PartDesign::Pocket", "Pocket024")
pocket25.Profile = sketch27
pocket25.Length = 3

# Sketch on XY plane
sketch28 = body.newObject("Sketcher::SketchObject", "Sketch027")
sketch28.AttachmentSupport = (doc.getObject("XY_Plane"), [""])
sketch28.MapMode = "FlatFace"
sketch28.AttachmentOffset = App.Placement(Vector(0, 0, 3), App.Rotation())
sketch28.addGeometry(Part.Circle(Vector(13.60715, -141.261777, 0), Vector(0, 0, 1), 1.6), False)
sketch28.addConstraint(Sketcher.Constraint("Diameter", 0, Q("3.2 mm")))
sketch28.addConstraint(Sketcher.Constraint("DistanceX", -1, 1, 0, 3, Q("13.60715 mm")))
sketch28.addConstraint(Sketcher.Constraint("DistanceY", 0, 3, -1, 1, Q("141.261777 mm")))
pocket26 = body.newObject("PartDesign::Pocket", "Pocket025")
pocket26.Profile = sketch28
pocket26.Length = 3

# Sketch on XY plane
sketch29 = body.newObject("Sketcher::SketchObject", "Sketch028")
sketch29.AttachmentSupport = (doc.getObject("XY_Plane"), [""])
sketch29.MapMode = "FlatFace"
sketch29.AttachmentOffset = App.Placement(Vector(0, 0, 3), App.Rotation())
sketch29.addGeometry(Part.Circle(Vector(56.033557, -158.83537, 0), Vector(0, 0, 1), 1.6), False)
sketch29.addConstraint(Sketcher.Constraint("Diameter", 0, Q("3.2 mm")))
sketch29.addConstraint(Sketcher.Constraint("DistanceY", 0, 3, -1, 1, Q("158.83537 mm")))
sketch29.addConstraint(Sketcher.Constraint("DistanceX", -1, 1, 0, 3, Q("56.033557 mm")))
pocket27 = body.newObject("PartDesign::Pocket", "Pocket026")
pocket27.Profile = sketch29
pocket27.Length = 3

# Sketch on XY plane
sketch30 = body.newObject("Sketcher::SketchObject", "Sketch029")
sketch30.AttachmentSupport = (doc.getObject("XY_Plane"), [""])
sketch30.MapMode = "FlatFace"
sketch30.AttachmentOffset = App.Placement(Vector(0, 0, 3), App.Rotation())
sketch30.addGeometry(Part.Circle(Vector(98.459964, -141.261777, 0), Vector(0, 0, 1), 1.6), False)
sketch30.addConstraint(Sketcher.Constraint("Diameter", 0, Q("3.2 mm")))
sketch30.addConstraint(Sketcher.Constraint("DistanceX", -1, 1, 0, 3, Q("98.459964 mm")))
sketch30.addConstraint(Sketcher.Constraint("DistanceY", 0, 3, -1, 1, Q("141.261777 mm")))
pocket28 = body.newObject("PartDesign::Pocket", "Pocket027")
pocket28.Profile = sketch30
pocket28.Length = 3

# Sketch on XY plane
sketch31 = body.newObject("Sketcher::SketchObject", "Sketch030")
sketch31.AttachmentSupport = (doc.getObject("XY_Plane"), [""])
sketch31.MapMode = "FlatFace"
sketch31.AttachmentOffset = App.Placement(Vector(0, 0, 3), App.Rotation())
sketch31.addGeometry(Part.Circle(Vector(116.033557, -98.83537, 0), Vector(0, 0, 1), 1.6), False)
sketch31.addConstraint(Sketcher.Constraint("Diameter", 0, Q("3.2 mm")))
sketch31.addConstraint(Sketcher.Constraint("DistanceY", 0, 3, -1, 1, Q("98.83537 mm")))
sketch31.addConstraint(Sketcher.Constraint("DistanceX", -1, 1, 0, 3, Q("116.033557 mm")))
pocket29 = body.newObject("PartDesign::Pocket", "Pocket028")
pocket29.Profile = sketch31
pocket29.Length = 3

# Sketch on XY plane
sketch32 = body.newObject("Sketcher::SketchObject", "Sketch031")
sketch32.AttachmentSupport = (doc.getObject("XY_Plane"), [""])
sketch32.MapMode = "FlatFace"
sketch32.AttachmentOffset = App.Placement(Vector(0, 0, 3), App.Rotation())
sketch32.addGeometry(Part.Circle(Vector(98.459964, -56.408964, 0), Vector(0, 0, 1), 1.6), False)
sketch32.addConstraint(Sketcher.Constraint("Diameter", 0, Q("3.2 mm")))
sketch32.addConstraint(Sketcher.Constraint("DistanceX", -1, 1, 0, 3, Q("98.459964 mm")))
sketch32.addConstraint(Sketcher.Constraint("DistanceY", 0, 3, -1, 1, Q("56.408964 mm")))
pocket30 = body.newObject("PartDesign::Pocket", "Pocket029")
pocket30.Profile = sketch32
pocket30.Length = 3

# Sketch on XY plane
sketch33 = body.newObject("Sketcher::SketchObject", "Sketch032")
sketch33.AttachmentSupport = (doc.getObject("XY_Plane"), [""])
sketch33.MapMode = "FlatFace"
sketch33.AttachmentOffset = App.Placement(Vector(0, 0, 3), App.Rotation())
sketch33.addGeometry(Part.Circle(Vector(56.033557, -98.83537, 0), Vector(0, 0, 1), 1.6), False)
sketch33.addConstraint(Sketcher.Constraint("Diameter", 0, Q("3.2 mm")))
sketch33.addConstraint(Sketcher.Constraint("DistanceY", 0, 3, -1, 1, Q("98.83537 mm")))
sketch33.addConstraint(Sketcher.Constraint("DistanceX", -1, 1, 0, 3, Q("56.033557 mm")))
pocket31 = body.newObject("PartDesign::Pocket", "Pocket030")
pocket31.Profile = sketch33
pocket31.Length = 3

# Sketch on XY plane
sketch34 = body.newObject("Sketcher::SketchObject", "Sketch033")
sketch34.AttachmentSupport = (doc.getObject("XY_Plane"), [""])
sketch34.MapMode = "FlatFace"
sketch34.AttachmentOffset = App.Placement(Vector(0, 0, 3), App.Rotation())
sketch34.addGeometry(Part.Circle(Vector(56.033557, -98.83537, 0), Vector(0, 0, 1), 1.6), False)
sketch34.addConstraint(Sketcher.Constraint("Diameter", 0, Q("3.2 mm")))
sketch34.addConstraint(Sketcher.Constraint("DistanceY", 0, 3, -1, 1, Q("98.83537 mm")))
sketch34.addConstraint(Sketcher.Constraint("DistanceX", -1, 1, 0, 3, Q("56.033557 mm")))
pocket32 = body.newObject("PartDesign::Pocket", "Pocket031")
pocket32.Profile = sketch34
pocket32.Length = 3

# Sketch on XY plane
sketch35 = body.newObject("Sketcher::SketchObject", "Sketch034")
sketch35.AttachmentSupport = (doc.getObject("XY_Plane"), [""])
sketch35.MapMode = "FlatFace"
sketch35.AttachmentOffset = App.Placement(Vector(0, 0, 3), App.Rotation())
sketch35.addGeometry(Part.Circle(Vector(56.033557, -98.83537, 0), Vector(0, 0, 1), 1.6), False)
sketch35.addConstraint(Sketcher.Constraint("Diameter", 0, Q("3.2 mm")))
sketch35.addConstraint(Sketcher.Constraint("DistanceY", 0, 3, -1, 1, Q("98.83537 mm")))
sketch35.addConstraint(Sketcher.Constraint("DistanceX", -1, 1, 0, 3, Q("56.033557 mm")))
pocket33 = body.newObject("PartDesign::Pocket", "Pocket032")
pocket33.Profile = sketch35
pocket33.Length = 3

# Sketch on XY plane
sketch36 = body.newObject("Sketcher::SketchObject", "Sketch035")
sketch36.AttachmentSupport = (doc.getObject("XY_Plane"), [""])
sketch36.MapMode = "FlatFace"
sketch36.AttachmentOffset = App.Placement(Vector(0, 0, 3), App.Rotation())
sketch36.addGeometry(Part.Circle(Vector(56.033557, -98.83537, 0), Vector(0, 0, 1), 1.6), False)
sketch36.addConstraint(Sketcher.Constraint("Diameter", 0, Q("3.2 mm")))
sketch36.addConstraint(Sketcher.Constraint("DistanceY", 0, 3, -1, 1, Q("98.83537 mm")))
sketch36.addConstraint(Sketcher.Constraint("DistanceX", -1, 1, 0, 3, Q("56.033557 mm")))
pocket34 = body.newObject("PartDesign::Pocket", "Pocket033")
pocket34.Profile = sketch36
pocket34.Length = 3

# Sketch on XY plane
sketch37 = body.newObject("Sketcher::SketchObject", "Sketch036")
sketch37.AttachmentSupport = (doc.getObject("XY_Plane"), [""])
sketch37.MapMode = "FlatFace"
sketch37.AttachmentOffset = App.Placement(Vector(0, 0, 3), App.Rotation())
sketch37.addGeometry(Part.Circle(Vector(56.033557, -98.83537, 0), Vector(0, 0, 1), 1.6), False)
sketch37.addConstraint(Sketcher.Constraint("Diameter", 0, Q("3.2 mm")))
sketch37.addConstraint(Sketcher.Constraint("DistanceY", 0, 3, -1, 1, Q("98.83537 mm")))
sketch37.addConstraint(Sketcher.Constraint("DistanceX", -1, 1, 0, 3, Q("56.033557 mm")))
pocket35 = body.newObject("PartDesign::Pocket", "Pocket034")
pocket35.Profile = sketch37
pocket35.Length = 3

# Sketch on XY plane
sketch38 = body.newObject("Sketcher::SketchObject", "Sketch037")
sketch38.AttachmentSupport = (doc.getObject("XY_Plane"), [""])
sketch38.MapMode = "FlatFace"
sketch38.AttachmentOffset = App.Placement(Vector(0, 0, 3), App.Rotation())
sketch38.addGeometry(Part.Circle(Vector(56.033557, -98.83537, 0), Vector(0, 0, 1), 1.6), False)
sketch38.addConstraint(Sketcher.Constraint("Diameter", 0, Q("3.2 mm")))
sketch38.addConstraint(Sketcher.Constraint("DistanceY", 0, 3, -1, 1, Q("98.83537 mm")))
sketch38.addConstraint(Sketcher.Constraint("DistanceX", -1, 1, 0, 3, Q("56.033557 mm")))
pocket36 = body.newObject("PartDesign::Pocket", "Pocket035")
pocket36.Profile = sketch38
pocket36.Length = 3

# Sketch on XY plane
sketch39 = body.newObject("Sketcher::SketchObject", "Sketch038")
sketch39.AttachmentSupport = (doc.getObject("XY_Plane"), [""])
sketch39.MapMode = "FlatFace"
sketch39.AttachmentOffset = App.Placement(Vector(0, 0, 3), App.Rotation())
sketch39.addGeometry(Part.Circle(Vector(56.033557, -98.83537, 0), Vector(0, 0, 1), 1.6), False)
sketch39.addConstraint(Sketcher.Constraint("Diameter", 0, Q("3.2 mm")))
sketch39.addConstraint(Sketcher.Constraint("DistanceY", 0, 3, -1, 1, Q("98.83537 mm")))
sketch39.addConstraint(Sketcher.Constraint("DistanceX", -1, 1, 0, 3, Q("56.033557 mm")))
pocket37 = body.newObject("PartDesign::Pocket", "Pocket036")
pocket37.Profile = sketch39
pocket37.Length = 3

doc.recompute()
